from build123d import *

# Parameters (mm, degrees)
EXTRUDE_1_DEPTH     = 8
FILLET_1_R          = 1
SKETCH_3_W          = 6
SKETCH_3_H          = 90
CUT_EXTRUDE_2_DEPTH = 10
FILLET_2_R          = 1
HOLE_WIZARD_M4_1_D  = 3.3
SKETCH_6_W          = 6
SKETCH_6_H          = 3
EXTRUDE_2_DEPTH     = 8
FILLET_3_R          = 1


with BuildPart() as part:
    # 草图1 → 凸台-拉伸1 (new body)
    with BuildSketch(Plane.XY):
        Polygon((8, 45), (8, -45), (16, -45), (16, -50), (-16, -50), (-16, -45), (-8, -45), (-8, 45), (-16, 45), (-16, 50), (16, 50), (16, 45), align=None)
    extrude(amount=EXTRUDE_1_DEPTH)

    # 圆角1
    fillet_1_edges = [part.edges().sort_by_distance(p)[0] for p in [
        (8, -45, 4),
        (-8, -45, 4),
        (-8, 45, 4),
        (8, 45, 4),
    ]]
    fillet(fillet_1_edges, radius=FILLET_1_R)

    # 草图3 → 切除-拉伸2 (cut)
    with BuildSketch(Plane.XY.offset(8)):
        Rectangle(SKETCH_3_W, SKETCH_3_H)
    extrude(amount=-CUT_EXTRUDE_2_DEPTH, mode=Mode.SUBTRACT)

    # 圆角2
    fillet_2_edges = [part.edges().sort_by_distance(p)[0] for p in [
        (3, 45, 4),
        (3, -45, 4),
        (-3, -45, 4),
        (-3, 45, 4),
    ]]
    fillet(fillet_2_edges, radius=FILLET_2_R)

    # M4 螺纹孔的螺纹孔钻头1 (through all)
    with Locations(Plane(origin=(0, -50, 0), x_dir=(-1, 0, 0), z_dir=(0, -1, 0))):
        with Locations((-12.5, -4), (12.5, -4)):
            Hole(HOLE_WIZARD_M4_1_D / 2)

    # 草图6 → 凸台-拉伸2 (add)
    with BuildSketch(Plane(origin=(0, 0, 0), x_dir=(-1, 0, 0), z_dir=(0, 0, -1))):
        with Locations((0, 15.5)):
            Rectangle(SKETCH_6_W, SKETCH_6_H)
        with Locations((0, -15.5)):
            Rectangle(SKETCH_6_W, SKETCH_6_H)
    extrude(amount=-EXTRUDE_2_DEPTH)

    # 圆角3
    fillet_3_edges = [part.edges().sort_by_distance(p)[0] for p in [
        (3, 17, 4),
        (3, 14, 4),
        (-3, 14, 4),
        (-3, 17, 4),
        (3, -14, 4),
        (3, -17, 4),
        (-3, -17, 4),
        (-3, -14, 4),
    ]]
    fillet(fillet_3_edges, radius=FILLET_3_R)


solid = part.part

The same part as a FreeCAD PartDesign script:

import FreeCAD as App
import Part
import Sketcher

V = App.Vector
Q = App.Units.Quantity


def edges_at(feature, points):
    """Names of the edges that pass closest to the given points."""
    edges = feature.Shape.Edges
    near = lambda p: min(range(len(edges)), key=lambda i: edges[i].distToShape(Part.Vertex(*p))[0])
    return sorted({f"Edge{near(p) + 1}" for p in points})

doc = App.newDocument("Part")
params = doc.addObject("Spreadsheet::Sheet", "Params")
for row, (alias, value) in enumerate([
    ("sketch1_width", "8 mm"),
    ("sketch1_width2", "32 mm"),
    ("sketch1_height", "90 mm"),
    ("sketch1_height2", "5 mm"),
    ("pad1_length", "8 mm"),
    ("fillet_radius", "1 mm"),
    ("sketch2_width", "6 mm"),
    ("sketch2_height", "90 mm"),
    ("pocket1_length", "10 mm"),
    ("fillet2_radius", "1 mm"),
    ("sketch3_diameter", "3.3 mm"),
    ("hole_diameter", "3.3 mm"),
    ("sketch4_width", "6 mm"),
    ("sketch4_height", "3 mm"),
    ("pad2_length", "8 mm"),
    ("fillet3_radius", "1 mm"),
], start=1):
    params.set(f"A{row}", alias)
    params.set(f"B{row}", "=" + value)
    params.setAlias(f"B{row}", alias)

body = doc.addObject("PartDesign::Body", "Body")

sketch1 = body.newObject("Sketcher::SketchObject", "Sketch")
sketch1.AttachmentSupport = (doc.getObject("XY_Plane"), [""])
sketch1.MapMode = "FlatFace"
sketch1.addGeometry([
    Part.LineSegment(V(8, -45, 0), V(8, 45, 0)),
    Part.LineSegment(V(8, 45, 0), V(16, 45, 0)),
    Part.LineSegment(V(16, 45, 0), V(16, 50, 0)),
    Part.LineSegment(V(16, 50, 0), V(-16, 50, 0)),
    Part.LineSegment(V(-16, 50, 0), V(-16, 45, 0)),
    Part.LineSegment(V(-16, 45, 0), V(-8, 45, 0)),
    Part.LineSegment(V(-8, 45, 0), V(-8, -45, 0)),
    Part.LineSegment(V(-8, -45, 0), V(-16, -45, 0)),
    Part.LineSegment(V(-16, -45, 0), V(-16, -50, 0)),
    Part.LineSegment(V(-16, -50, 0), V(16, -50, 0)),
    Part.LineSegment(V(16, -50, 0), V(16, -45, 0)),
    Part.LineSegment(V(16, -45, 0), V(8, -45, 0)),
], False)
sketch1.addConstraint([
    Sketcher.Constraint("Coincident", 0, 2, 1, 1),
    Sketcher.Constraint("Coincident", 1, 2, 2, 1),
    Sketcher.Constraint("Coincident", 2, 2, 3, 1),
    Sketcher.Constraint("Coincident", 3, 2, 4, 1),
    Sketcher.Constraint("Coincident", 4, 2, 5, 1),
    Sketcher.Constraint("Coincident", 5, 2, 6, 1),
    Sketcher.Constraint("Coincident", 6, 2, 7, 1),
    Sketcher.Constraint("Coincident", 7, 2, 8, 1),
    Sketcher.Constraint("Coincident", 8, 2, 9, 1),
    Sketcher.Constraint("Coincident", 9, 2, 10, 1),
    Sketcher.Constraint("Coincident", 10, 2, 11, 1),
    Sketcher.Constraint("Coincident", 11, 2, 0, 1),
    Sketcher.Constraint("Vertical", 0),
    Sketcher.Constraint("Horizontal", 1),
    Sketcher.Constraint("Vertical", 2),
    Sketcher.Constraint("Horizontal", 3),
    Sketcher.Constraint("Vertical", 4),
    Sketcher.Constraint("Horizontal", 5),
    Sketcher.Constraint("Vertical", 6),
    Sketcher.Constraint("Horizontal", 7),
    Sketcher.Constraint("Vertical", 8),
    Sketcher.Constraint("Horizontal", 9),
    Sketcher.Constraint("Vertical", 10),
    Sketcher.Constraint("Horizontal", 11),
    Sketcher.Constraint("Symmetric", 0, 2, 6, 2, -1, 1),
    Sketcher.Constraint("Symmetric", 2, 2, 8, 2, -1, 1),
    Sketcher.Constraint("Symmetric", 4, 2, 10, 2, -1, 1),
    Sketcher.Constraint("Symmetric", 1, 2, 4, 2, -2),
    Sketcher.Constraint("DistanceX", 1, 1, 1, 2, Q("8 mm")),
    Sketcher.Constraint("DistanceX", 3, 2, 3, 1, Q("32 mm")),
    Sketcher.Constraint("DistanceY", 0, 1, 0, 2, Q("90 mm")),
    Sketcher.Constraint("DistanceY", 2, 1, 2, 2, Q("5 mm")),
])
sketch1.setExpression("Constraints[28]", "Params.sketch1_width")
sketch1.setExpression("Constraints[29]", "Params.sketch1_width2")
sketch1.setExpression("Constraints[30]", "Params.sketch1_height")
sketch1.setExpression("Constraints[31]", "Params.sketch1_height2")
pad1 = body.newObject("PartDesign::Pad", "Pad")
pad1.Profile = sketch1
pad1.setExpression("Length", "Params.pad1_length")
doc.recompute()

fillet = body.newObject("PartDesign::Fillet", "Fillet")
fillet.Base = (pad1, edges_at(pad1, [
    (8, -45, 4),
    (-8, -45, 4),
    (-8, 45, 4),
    (8, 45, 4),
]))
fillet.setExpression("Radius", "Params.fillet_radius")

sketch2 = body.newObject("Sketcher::SketchObject", "Sketch001")
sketch2.AttachmentSupport = (doc.getObject("XY_Plane"), [""])
sketch2.MapMode = "FlatFace"
sketch2.AttachmentOffset = App.Placement(V(0, 0, 8), App.Rotation())
sketch2.addGeometry([
    Part.LineSegment(V(-3, 45, 0), V(-3, -45, 0)),
    Part.LineSegment(V(-3, -45, 0), V(3, -45, 0)),
    Part.LineSegment(V(3, -45, 0), V(3, 45, 0)),
    Part.LineSegment(V(3, 45, 0), V(-3, 45, 0)),
], False)
sketch2.addConstraint([
    Sketcher.Constraint("Coincident", 0, 2, 1, 1),
    Sketcher.Constraint("Coincident", 1, 2, 2, 1),
    Sketcher.Constraint("Coincident", 2, 2, 3, 1),
    Sketcher.Constraint("Coincident", 3, 2, 0, 1),
    Sketcher.Constraint("Vertical", 0),
    Sketcher.Constraint("Horizontal", 1),
    Sketcher.Constraint("Vertical", 2),
    Sketcher.Constraint("Horizontal", 3),
    Sketcher.Constraint("Symmetric", 0, 2, 2, 2, -1, 1),
    Sketcher.Constraint("DistanceX", 1, 1, 1, 2, Q("6 mm")),
    Sketcher.Constraint("DistanceY", 0, 2, 0, 1, Q("90 mm")),
])
sketch2.setExpression("Constraints[9]", "Params.sketch2_width")
sketch2.setExpression("Constraints[10]", "Params.sketch2_height")
pocket1 = body.newObject("PartDesign::Pocket", "Pocket")
pocket1.Profile = sketch2
pocket1.setExpression("Length", "Params.pocket1_length")
doc.recompute()

fillet2 = body.newObject("PartDesign::Fillet", "Fillet001")
fillet2.Base = (pocket1, edges_at(pocket1, [
    (3, 45, 4),
    (3, -45, 4),
    (-3, -45, 4),
    (-3, 45, 4),
]))
fillet2.setExpression("Radius", "Params.fillet2_radius")

sketch3 = body.newObject("Sketcher::SketchObject", "Sketch002")
sketch3.AttachmentSupport = (doc.getObject("XZ_Plane"), [""])
sketch3.MapMode = "FlatFace"
sketch3.AttachmentOffset = App.Placement(V(0, 0, 50), App.Rotation())
sketch3.addGeometry([
    Part.Circle(V(12.5, 4, 0), V(0, 0, 1), 1.6),
    Part.Circle(V(-12.5, 4, 0), V(0, 0, 1), 1.6),
], False)
sketch3.addConstraint([
    Sketcher.Constraint("Equal", 0, 1),
    Sketcher.Constraint("Symmetric", 0, 3, 1, 3, -2),
    Sketcher.Constraint("Diameter", 0, Q("3.3 mm")),
    Sketcher.Constraint("DistanceY", -1, 1, 0, 3, Q("4 mm")),
    Sketcher.Constraint("DistanceX", 1, 3, 0, 3, Q("25 mm")),
])
sketch3.setExpression("Constraints[2]", "Params.sketch3_diameter")
doc.recompute()
hole = body.newObject("PartDesign::Hole", "Hole")
hole.Profile = sketch3
hole.ThreadType = "None"
hole.setExpression("Diameter", "Params.hole_diameter")
hole.DepthType = "ThroughAll"

sketch4 = body.newObject("Sketcher::SketchObject", "Sketch003")
sketch4.AttachmentSupport = (doc.getObject("XY_Plane"), [""])
sketch4.MapMode = "FlatFace"
sketch4.addGeometry([
    Part.LineSegment(V(3, 17, 0), V(3, 14, 0)),
    Part.LineSegment(V(3, 14, 0), V(-3, 14, 0)),
    Part.LineSegment(V(-3, 14, 0), V(-3, 17, 0)),
    Part.LineSegment(V(-3, 17, 0), V(3, 17, 0)),
    Part.LineSegment(V(3, -14, 0), V(3, -17, 0)),
    Part.LineSegment(V(3, -17, 0), V(-3, -17, 0)),
    Part.LineSegment(V(-3, -17, 0), V(-3, -14, 0)),
    Part.LineSegment(V(-3, -14, 0), V(3, -14, 0)),
], False)
sketch4.addConstraint([
    Sketcher.Constraint("Coincident", 0, 2, 1, 1),
    Sketcher.Constraint("Coincident", 1, 2, 2, 1),
    Sketcher.Constraint("Coincident", 2, 2, 3, 1),
    Sketcher.Constraint("Coincident", 3, 2, 0, 1),
    Sketcher.Constraint("Coincident", 4, 2, 5, 1),
    Sketcher.Constraint("Coincident", 5, 2, 6, 1),
    Sketcher.Constraint("Coincident", 6, 2, 7, 1),
    Sketcher.Constraint("Coincident", 7, 2, 4, 1),
    Sketcher.Constraint("Vertical", 0),
    Sketcher.Constraint("Horizontal", 1),
    Sketcher.Constraint("Vertical", 2),
    Sketcher.Constraint("Horizontal", 3),
    Sketcher.Constraint("Vertical", 4),
    Sketcher.Constraint("Horizontal", 5),
    Sketcher.Constraint("Vertical", 6),
    Sketcher.Constraint("Horizontal", 7),
    Sketcher.Constraint("Symmetric", 2, 2, 4, 2, -1, 1),
    Sketcher.Constraint("Symmetric", 0, 2, 6, 2, -1, 1),
    Sketcher.Constraint("Vertical", 3, 2, 4, 2),
    Sketcher.Constraint("DistanceX", 1, 2, 1, 1, Q("6 mm")),
    Sketcher.Constraint("DistanceY", 0, 2, 0, 1, Q("3 mm")),
    Sketcher.Constraint("DistanceY", -1, 1, 0, 2, Q("14 mm")),
])
sketch4.setExpression("Constraints[19]", "Params.sketch4_width")
sketch4.setExpression("Constraints[20]", "Params.sketch4_height")
pad2 = body.newObject("PartDesign::Pad", "Pad001")
pad2.Profile = sketch4
pad2.setExpression("Length", "Params.pad2_length")
doc.recompute()

fillet3 = body.newObject("PartDesign::Fillet", "Fillet002")
fillet3.Base = (pad2, edges_at(pad2, [
    (3, 17, 4),
    (3, 14, 4),
    (-3, 14, 4),
    (-3, 17, 4),
    (3, -14, 4),
    (3, -17, 4),
    (-3, -17, 4),
    (-3, -14, 4),
]))
fillet3.setExpression("Radius", "Params.fillet3_radius")

doc.recompute()
